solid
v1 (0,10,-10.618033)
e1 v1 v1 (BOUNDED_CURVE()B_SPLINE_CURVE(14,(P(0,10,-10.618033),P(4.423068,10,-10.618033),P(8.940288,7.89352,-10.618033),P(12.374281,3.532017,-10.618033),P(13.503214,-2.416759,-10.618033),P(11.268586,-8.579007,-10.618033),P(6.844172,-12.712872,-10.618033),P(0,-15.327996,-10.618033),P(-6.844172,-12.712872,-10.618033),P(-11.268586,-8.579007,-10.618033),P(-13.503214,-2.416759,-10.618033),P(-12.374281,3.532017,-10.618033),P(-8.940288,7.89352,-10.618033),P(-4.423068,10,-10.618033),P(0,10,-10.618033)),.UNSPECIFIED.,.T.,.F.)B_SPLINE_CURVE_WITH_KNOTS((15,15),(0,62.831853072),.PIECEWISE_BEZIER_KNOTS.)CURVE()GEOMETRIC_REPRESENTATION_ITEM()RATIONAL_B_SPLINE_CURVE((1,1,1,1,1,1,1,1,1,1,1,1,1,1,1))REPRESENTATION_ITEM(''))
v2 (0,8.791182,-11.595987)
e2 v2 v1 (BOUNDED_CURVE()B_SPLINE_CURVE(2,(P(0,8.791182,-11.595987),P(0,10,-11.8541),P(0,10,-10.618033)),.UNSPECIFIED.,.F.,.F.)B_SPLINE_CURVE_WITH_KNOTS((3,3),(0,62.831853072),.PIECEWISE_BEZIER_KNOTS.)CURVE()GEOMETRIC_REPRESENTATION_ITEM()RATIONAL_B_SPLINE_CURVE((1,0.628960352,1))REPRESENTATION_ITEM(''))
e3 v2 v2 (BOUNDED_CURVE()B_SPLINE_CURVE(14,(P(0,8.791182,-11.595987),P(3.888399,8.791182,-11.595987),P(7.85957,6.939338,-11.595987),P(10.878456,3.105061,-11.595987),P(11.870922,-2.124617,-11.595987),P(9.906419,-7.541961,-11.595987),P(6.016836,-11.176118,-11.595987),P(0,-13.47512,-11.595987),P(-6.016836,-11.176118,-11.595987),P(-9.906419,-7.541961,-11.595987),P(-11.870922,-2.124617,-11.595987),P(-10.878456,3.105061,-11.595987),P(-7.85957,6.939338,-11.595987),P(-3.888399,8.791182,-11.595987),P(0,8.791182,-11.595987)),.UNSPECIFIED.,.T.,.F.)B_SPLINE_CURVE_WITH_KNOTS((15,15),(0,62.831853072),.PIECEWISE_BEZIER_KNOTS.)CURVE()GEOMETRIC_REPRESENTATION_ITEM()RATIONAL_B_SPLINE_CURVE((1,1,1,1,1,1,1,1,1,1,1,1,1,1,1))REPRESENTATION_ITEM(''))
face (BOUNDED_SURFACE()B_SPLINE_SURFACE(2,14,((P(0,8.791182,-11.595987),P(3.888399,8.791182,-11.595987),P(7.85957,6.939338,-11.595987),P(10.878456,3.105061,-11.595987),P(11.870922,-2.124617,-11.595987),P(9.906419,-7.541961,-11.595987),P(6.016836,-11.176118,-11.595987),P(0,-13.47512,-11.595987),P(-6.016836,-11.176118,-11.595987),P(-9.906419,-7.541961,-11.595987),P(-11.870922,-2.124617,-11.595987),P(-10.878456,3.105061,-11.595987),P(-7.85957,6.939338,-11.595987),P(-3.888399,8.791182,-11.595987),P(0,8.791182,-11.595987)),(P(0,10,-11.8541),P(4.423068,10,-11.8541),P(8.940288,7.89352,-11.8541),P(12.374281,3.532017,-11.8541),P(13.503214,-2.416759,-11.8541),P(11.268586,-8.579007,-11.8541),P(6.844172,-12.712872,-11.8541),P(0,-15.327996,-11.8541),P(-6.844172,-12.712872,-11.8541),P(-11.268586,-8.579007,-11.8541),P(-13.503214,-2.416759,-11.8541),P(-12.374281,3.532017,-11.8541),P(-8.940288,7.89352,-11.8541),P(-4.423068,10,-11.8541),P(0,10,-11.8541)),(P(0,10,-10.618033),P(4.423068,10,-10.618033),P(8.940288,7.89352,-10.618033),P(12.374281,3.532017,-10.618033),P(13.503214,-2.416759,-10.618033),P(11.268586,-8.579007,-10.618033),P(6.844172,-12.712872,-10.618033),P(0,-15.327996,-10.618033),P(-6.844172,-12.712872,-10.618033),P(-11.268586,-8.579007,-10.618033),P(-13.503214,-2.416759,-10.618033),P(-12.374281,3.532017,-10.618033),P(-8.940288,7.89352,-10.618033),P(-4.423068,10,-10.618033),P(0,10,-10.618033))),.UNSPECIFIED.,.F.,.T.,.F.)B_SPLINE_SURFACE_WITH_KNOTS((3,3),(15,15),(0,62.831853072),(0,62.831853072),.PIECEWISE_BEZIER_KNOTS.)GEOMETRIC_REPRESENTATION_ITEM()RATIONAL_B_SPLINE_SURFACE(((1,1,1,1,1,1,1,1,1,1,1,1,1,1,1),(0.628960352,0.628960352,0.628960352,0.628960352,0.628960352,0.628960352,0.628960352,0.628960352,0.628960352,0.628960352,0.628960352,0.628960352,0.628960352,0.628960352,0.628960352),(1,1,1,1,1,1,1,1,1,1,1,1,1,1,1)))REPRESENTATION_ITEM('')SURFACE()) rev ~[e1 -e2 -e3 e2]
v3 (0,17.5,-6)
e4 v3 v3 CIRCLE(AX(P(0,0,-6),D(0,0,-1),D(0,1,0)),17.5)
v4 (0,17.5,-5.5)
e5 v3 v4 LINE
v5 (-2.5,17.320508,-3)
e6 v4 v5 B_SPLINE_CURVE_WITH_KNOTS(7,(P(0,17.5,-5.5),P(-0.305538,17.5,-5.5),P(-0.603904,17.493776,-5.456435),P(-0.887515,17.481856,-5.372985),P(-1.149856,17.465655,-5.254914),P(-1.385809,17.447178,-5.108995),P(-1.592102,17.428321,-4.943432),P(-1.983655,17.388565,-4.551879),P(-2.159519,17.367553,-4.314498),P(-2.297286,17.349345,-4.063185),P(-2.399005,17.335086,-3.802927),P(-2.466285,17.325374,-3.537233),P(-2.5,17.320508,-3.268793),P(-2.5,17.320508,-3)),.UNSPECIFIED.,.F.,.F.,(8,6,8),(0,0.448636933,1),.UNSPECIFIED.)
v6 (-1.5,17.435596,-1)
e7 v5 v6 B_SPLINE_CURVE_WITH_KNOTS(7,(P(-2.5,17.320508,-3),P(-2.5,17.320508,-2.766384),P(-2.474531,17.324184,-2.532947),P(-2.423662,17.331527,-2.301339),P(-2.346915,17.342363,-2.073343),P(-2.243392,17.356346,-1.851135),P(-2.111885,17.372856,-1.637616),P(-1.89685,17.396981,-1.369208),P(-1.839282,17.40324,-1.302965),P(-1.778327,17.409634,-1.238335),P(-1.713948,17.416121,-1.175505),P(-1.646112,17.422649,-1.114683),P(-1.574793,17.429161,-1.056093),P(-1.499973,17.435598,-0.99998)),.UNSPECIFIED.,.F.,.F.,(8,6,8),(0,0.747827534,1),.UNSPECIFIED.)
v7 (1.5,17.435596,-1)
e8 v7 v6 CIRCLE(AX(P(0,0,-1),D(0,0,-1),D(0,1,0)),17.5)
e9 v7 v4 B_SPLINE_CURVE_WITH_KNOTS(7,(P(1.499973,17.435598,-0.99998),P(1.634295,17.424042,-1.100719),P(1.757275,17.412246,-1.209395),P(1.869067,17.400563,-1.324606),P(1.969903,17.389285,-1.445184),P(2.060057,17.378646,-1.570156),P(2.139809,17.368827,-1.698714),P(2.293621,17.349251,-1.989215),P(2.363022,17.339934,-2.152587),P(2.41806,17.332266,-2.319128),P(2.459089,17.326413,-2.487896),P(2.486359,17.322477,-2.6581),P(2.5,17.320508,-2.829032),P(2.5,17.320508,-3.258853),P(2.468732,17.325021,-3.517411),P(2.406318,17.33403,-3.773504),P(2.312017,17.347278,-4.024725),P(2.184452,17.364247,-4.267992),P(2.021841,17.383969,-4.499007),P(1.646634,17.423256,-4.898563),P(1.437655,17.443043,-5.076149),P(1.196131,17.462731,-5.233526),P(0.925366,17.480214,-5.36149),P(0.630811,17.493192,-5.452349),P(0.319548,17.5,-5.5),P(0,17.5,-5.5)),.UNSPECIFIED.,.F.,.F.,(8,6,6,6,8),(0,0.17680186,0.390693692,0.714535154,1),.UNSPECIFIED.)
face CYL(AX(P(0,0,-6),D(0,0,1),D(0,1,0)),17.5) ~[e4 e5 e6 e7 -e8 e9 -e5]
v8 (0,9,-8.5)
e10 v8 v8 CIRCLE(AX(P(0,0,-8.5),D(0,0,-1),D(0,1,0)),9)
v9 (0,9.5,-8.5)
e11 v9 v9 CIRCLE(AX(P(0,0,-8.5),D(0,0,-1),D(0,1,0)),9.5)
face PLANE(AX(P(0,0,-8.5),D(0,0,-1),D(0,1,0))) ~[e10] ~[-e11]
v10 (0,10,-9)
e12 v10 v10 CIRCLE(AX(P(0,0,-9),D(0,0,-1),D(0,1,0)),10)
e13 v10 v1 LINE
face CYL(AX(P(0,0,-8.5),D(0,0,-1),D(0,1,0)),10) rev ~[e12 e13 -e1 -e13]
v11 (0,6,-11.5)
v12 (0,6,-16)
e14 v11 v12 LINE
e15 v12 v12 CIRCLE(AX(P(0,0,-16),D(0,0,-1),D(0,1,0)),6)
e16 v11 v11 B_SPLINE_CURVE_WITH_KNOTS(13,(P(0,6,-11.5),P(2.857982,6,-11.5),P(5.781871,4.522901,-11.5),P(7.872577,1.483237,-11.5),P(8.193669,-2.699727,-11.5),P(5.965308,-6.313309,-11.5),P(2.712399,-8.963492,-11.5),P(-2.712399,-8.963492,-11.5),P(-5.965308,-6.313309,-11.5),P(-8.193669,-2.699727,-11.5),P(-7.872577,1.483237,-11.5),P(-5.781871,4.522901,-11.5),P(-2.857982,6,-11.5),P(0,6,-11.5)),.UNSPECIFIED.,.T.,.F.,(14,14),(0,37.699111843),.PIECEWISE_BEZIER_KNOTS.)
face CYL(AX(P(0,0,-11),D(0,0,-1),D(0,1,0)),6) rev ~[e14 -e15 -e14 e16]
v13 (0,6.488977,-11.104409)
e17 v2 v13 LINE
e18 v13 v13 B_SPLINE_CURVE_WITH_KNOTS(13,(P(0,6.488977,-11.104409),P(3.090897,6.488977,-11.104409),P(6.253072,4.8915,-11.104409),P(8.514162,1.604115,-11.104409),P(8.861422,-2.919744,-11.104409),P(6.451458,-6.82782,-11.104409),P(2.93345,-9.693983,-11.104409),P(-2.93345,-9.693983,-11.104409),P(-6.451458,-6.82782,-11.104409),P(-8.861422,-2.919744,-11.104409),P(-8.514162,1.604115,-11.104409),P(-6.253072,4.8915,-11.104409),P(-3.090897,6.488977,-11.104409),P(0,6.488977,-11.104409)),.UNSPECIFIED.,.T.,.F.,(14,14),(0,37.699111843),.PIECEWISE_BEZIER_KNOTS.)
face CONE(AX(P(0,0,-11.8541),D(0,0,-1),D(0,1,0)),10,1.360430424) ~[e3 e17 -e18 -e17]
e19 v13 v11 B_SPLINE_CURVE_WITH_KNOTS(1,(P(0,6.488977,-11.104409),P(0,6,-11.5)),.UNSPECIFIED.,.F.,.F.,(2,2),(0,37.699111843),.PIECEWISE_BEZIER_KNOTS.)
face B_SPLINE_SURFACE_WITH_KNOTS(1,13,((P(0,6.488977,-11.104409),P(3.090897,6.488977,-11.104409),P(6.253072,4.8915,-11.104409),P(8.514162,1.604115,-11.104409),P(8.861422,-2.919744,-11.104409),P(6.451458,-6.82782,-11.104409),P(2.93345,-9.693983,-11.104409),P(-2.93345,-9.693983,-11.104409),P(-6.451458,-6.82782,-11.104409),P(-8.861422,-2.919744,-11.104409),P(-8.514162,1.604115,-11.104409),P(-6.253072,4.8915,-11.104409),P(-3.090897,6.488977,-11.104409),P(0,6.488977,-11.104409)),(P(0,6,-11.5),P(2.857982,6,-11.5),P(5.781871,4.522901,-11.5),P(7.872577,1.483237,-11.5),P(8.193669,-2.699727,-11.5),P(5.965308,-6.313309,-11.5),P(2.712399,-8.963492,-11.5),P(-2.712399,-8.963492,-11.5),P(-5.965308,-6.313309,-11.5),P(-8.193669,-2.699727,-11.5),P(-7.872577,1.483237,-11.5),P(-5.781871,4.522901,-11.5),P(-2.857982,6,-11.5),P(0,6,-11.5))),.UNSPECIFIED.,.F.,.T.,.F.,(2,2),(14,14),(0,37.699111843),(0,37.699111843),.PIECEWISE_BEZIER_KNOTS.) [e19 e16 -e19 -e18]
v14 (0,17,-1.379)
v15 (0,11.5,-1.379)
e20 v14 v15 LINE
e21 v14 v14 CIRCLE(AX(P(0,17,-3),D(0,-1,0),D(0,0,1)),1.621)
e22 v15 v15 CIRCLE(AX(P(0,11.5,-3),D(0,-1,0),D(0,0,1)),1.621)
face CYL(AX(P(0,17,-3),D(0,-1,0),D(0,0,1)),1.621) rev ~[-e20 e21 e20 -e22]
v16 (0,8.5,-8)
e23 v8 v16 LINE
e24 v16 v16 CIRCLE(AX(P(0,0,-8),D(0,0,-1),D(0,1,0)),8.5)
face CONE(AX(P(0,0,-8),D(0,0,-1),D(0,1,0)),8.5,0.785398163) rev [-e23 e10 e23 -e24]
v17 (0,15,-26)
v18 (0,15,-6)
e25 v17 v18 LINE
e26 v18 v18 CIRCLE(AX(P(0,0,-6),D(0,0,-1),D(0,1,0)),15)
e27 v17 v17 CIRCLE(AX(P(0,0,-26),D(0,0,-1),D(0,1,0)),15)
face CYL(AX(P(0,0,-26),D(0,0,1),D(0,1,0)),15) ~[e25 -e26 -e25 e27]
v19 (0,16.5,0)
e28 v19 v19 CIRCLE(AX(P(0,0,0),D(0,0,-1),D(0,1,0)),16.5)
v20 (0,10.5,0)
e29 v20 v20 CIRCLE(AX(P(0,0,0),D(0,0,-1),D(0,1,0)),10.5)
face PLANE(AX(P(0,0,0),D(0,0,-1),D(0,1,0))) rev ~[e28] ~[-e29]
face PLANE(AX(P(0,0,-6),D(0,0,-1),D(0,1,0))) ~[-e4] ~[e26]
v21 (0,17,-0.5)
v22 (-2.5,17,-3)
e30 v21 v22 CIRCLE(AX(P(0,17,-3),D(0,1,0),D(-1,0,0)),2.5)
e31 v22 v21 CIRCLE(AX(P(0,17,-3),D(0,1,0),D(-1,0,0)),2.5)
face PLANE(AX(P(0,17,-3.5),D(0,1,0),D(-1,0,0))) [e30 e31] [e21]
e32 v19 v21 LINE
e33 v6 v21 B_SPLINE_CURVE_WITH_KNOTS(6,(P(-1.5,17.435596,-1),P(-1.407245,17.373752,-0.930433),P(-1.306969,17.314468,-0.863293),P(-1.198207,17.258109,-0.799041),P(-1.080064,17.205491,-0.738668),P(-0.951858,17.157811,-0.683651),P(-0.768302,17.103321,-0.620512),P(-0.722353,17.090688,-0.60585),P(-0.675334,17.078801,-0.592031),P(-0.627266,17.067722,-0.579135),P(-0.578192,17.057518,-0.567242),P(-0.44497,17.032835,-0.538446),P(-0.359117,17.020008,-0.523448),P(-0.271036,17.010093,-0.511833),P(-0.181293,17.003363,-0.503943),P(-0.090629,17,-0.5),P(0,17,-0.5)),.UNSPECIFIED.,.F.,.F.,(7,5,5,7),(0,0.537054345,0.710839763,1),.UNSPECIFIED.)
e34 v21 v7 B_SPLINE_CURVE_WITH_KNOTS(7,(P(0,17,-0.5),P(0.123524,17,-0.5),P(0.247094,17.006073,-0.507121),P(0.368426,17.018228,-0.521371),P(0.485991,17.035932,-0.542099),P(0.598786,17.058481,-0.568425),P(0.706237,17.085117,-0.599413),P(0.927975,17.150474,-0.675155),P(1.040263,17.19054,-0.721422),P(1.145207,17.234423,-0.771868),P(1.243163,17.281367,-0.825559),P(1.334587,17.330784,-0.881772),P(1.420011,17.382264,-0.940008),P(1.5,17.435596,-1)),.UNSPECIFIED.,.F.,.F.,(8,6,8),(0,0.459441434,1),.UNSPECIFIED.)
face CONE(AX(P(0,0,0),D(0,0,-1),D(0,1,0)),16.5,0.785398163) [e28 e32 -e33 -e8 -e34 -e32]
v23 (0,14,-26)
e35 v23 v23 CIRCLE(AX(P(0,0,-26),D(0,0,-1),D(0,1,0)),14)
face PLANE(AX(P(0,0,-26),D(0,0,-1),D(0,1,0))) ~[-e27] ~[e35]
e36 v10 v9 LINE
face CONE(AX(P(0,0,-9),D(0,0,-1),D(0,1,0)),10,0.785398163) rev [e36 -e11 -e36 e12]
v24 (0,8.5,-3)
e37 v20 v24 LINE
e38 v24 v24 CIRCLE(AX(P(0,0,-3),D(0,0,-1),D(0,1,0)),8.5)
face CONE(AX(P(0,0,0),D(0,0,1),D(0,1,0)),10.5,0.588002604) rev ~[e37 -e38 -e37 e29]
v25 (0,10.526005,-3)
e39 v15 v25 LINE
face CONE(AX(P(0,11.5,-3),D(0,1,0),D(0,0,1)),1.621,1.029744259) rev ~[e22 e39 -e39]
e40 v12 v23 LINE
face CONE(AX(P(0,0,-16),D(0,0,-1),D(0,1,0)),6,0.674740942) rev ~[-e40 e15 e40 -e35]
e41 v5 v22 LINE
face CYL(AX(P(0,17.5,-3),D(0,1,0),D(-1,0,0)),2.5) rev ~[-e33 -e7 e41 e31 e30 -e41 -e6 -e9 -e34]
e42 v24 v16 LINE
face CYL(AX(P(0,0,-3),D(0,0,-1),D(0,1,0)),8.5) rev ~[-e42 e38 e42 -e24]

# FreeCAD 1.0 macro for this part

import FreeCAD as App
import Part
import Sketcher
from FreeCAD import Vector
Q = App.Units.Quantity


def edges_at(feature, points):
    """Names of the edges that pass closest to the given points."""
    edges = feature.Shape.Edges
    near = lambda p: min(range(len(edges)), key=lambda i: edges[i].distToShape(Part.Vertex(*p))[0])
    return sorted({f"Edge{near(p) + 1}" for p in points})

doc = App.newDocument("Part")
body = doc.addObject("PartDesign::Body", "Body")

# Sketch on YZ plane
sketch1 = body.newObject("Sketcher::SketchObject", "Sketch")
sketch1.AttachmentSupport = (doc.getObject("YZ_Plane"), [""])
sketch1.MapMode = "FlatFace"
sketch1.addGeometry(Part.LineSegment(Vector(10.5, 0, 0), Vector(8.5, -3, 0)), False)
sketch1.addGeometry(Part.LineSegment(Vector(8.5, -3, 0), Vector(8.5, -8.5, 0)), False)
sketch1.addGeometry(Part.LineSegment(Vector(8.5, -8.5, 0), Vector(10, -8.5, 0)), False)
sketch1.addGeometry(Part.LineSegment(Vector(10, -8.5, 0), Vector(10, -11.9, 0)), False)
sketch1.addGeometry(Part.LineSegment(Vector(10, -11.9, 0), Vector(6, -11, 0)), False)
sketch1.addGeometry(Part.LineSegment(Vector(6, -11, 0), Vector(6, -16, 0)), False)
sketch1.addGeometry(Part.LineSegment(Vector(6, -16, 0), Vector(14, -26, 0)), False)
sketch1.addGeometry(Part.LineSegment(Vector(14, -26, 0), Vector(15, -26, 0)), False)
sketch1.addGeometry(Part.LineSegment(Vector(15, -26, 0), Vector(15, -6, 0)), False)
sketch1.addGeometry(Part.LineSegment(Vector(15, -6, 0), Vector(17.5, -6, 0)), False)
sketch1.addGeometry(Part.LineSegment(Vector(17.5, -6, 0), Vector(17.5, -1, 0)), False)
sketch1.addGeometry(Part.LineSegment(Vector(17.5, -1, 0), Vector(16.5, 0, 0)), False)
sketch1.addGeometry(Part.LineSegment(Vector(16.5, 0, 0), Vector(10.5, 0, 0)), False)
sketch1.addConstraint(Sketcher.Constraint("Coincident", 0, 2, 1, 1))
sketch1.addConstraint(Sketcher.Constraint("Coincident", 1, 2, 2, 1))
sketch1.addConstraint(Sketcher.Constraint("Coincident", 2, 2, 3, 1))
sketch1.addConstraint(Sketcher.Constraint("Coincident", 3, 2, 4, 1))
sketch1.addConstraint(Sketcher.Constraint("Coincident", 4, 2, 5, 1))
sketch1.addConstraint(Sketcher.Constraint("Coincident", 5, 2, 6, 1))
sketch1.addConstraint(Sketcher.Constraint("Coincident", 6, 2, 7, 1))
sketch1.addConstraint(Sketcher.Constraint("Coincident", 7, 2, 8, 1))
sketch1.addConstraint(Sketcher.Constraint("Coincident", 8, 2, 9, 1))
sketch1.addConstraint(Sketcher.Constraint("Coincident", 9, 2, 10, 1))
sketch1.addConstraint(Sketcher.Constraint("Coincident", 10, 2, 11, 1))
sketch1.addConstraint(Sketcher.Constraint("Coincident", 11, 2, 12, 1))
sketch1.addConstraint(Sketcher.Constraint("Coincident", 12, 2, 0, 1))
sketch1.addConstraint(Sketcher.Constraint("Vertical", 1))
sketch1.addConstraint(Sketcher.Constraint("Horizontal", 2))
sketch1.addConstraint(Sketcher.Constraint("Vertical", 3))
sketch1.addConstraint(Sketcher.Constraint("Vertical", 5))
sketch1.addConstraint(Sketcher.Constraint("Horizontal", 7))
sketch1.addConstraint(Sketcher.Constraint("Vertical", 8))
sketch1.addConstraint(Sketcher.Constraint("Horizontal", 9))
sketch1.addConstraint(Sketcher.Constraint("Vertical", 10))
sketch1.addConstraint(Sketcher.Constraint("Horizontal", 12))
sketch1.addConstraint(Sketcher.Constraint("PointOnObject", 11, 2, -1))
sketch1.addConstraint(Sketcher.Constraint("Equal", 5, 10))
sketch1.addConstraint(Sketcher.Constraint("DistanceX", 7, 1, 7, 2, Q("1 mm")))
sketch1.addConstraint(Sketcher.Constraint("DistanceY", 5, 2, 5, 1, Q("5 mm")))
sketch1.addConstraint(Sketcher.Constraint("DistanceY", 8, 1, 8, 2, Q("20 mm")))
sketch1.addConstraint(Sketcher.Constraint("DistanceX", 9, 1, 9, 2, Q("2.5 mm")))
sketch1.addConstraint(Sketcher.Constraint("DistanceY", 0, 2, -1, 1, Q("3 mm")))
sketch1.addConstraint(Sketcher.Constraint("DistanceX", -1, 1, 2, 2, Q("10 mm")))
sketch1.addConstraint(Sketcher.Constraint("DistanceY", 4, 2, -1, 1, Q("11 mm")))
sketch1.addConstraint(Sketcher.Constraint("DistanceY", 10, 2, -1, 1, Q("1 mm")))
sketch1.addConstraint(Sketcher.Constraint("DistanceX", 3, 2, 7, 2, Q("5 mm")))
sketch1.addConstraint(Sketcher.Constraint("DistanceX", 11, 2, 10, 2, Q("1 mm")))
sketch1.addConstraint(Sketcher.Constraint("DistanceX", 0, 2, 12, 2, Q("2 mm")))
sketch1.addConstraint(Sketcher.Constraint("DistanceX", 4, 2, 1, 2, Q("2.5 mm")))
sketch1.addConstraint(Sketcher.Constraint("DistanceY", 4, 2, 1, 2, Q("2.5 mm")))
sketch1.addConstraint(Sketcher.Constraint("DistanceX", 12, 2, 12, 1, Q("6 mm")))
sketch1.addConstraint(Sketcher.Constraint("DistanceY", 3, 2, 3, 1, Q("3.354 mm")))
revolution = body.newObject("PartDesign::Revolution", "Revolution")
revolution.Profile = sketch1
revolution.ReferenceAxis = (sketch1, ["V_Axis"])
revolution.Angle = 360
doc.recompute()

fillet = body.newObject("PartDesign::Fillet", "Fillet")
fillet.Base = (revolution, edges_at(revolution, [(0, -10, -11.854)]))
fillet.Radius = 1
doc.recompute()

chamfer = body.newObject("PartDesign::Chamfer", "Chamfer")
chamfer.Base = (fillet, edges_at(fillet, [(0, -8.5, -8.5), (0, -6, -11), (0, -10, -8.5)]))
chamfer.Size = 0.5

# Sketch on XZ plane
sketch2 = body.newObject("Sketcher::SketchObject", "Sketch001")
sketch2.AttachmentSupport = (doc.getObject("XZ_Plane"), [""])
sketch2.MapMode = "FlatFace"
sketch2.AttachmentOffset = App.Placement(Vector(0, 0, -17.5), App.Rotation())
sketch2.addGeometry(Part.Circle(Vector(0, -3, 0), Vector(0, 0, 1), 2.5), False)
sketch2.addConstraint(Sketcher.Constraint("PointOnObject", 0, 3, -2))
sketch2.addConstraint(Sketcher.Constraint("Diameter", 0, Q("5 mm")))
sketch2.addConstraint(Sketcher.Constraint("DistanceY", 0, 3, -1, 1, Q("3 mm")))
pocket1 = body.newObject("PartDesign::Pocket", "Pocket")
pocket1.Profile = sketch2
pocket1.Length = 0.5
pocket1.Reversed = True

# Sketch on XZ plane
sketch3 = body.newObject("Sketcher::SketchObject", "Sketch002")
sketch3.AttachmentSupport = (doc.getObject("XZ_Plane"), [""])
sketch3.MapMode = "FlatFace"
sketch3.AttachmentOffset = App.Placement(Vector(0, 0, -17), App.Rotation())
sketch3.addGeometry(Part.Circle(Vector(0, -3, 0), Vector(0, 0, 1), 1.6), False)
sketch3.addConstraint(Sketcher.Constraint("PointOnObject", 0, 3, -2))
sketch3.addConstraint(Sketcher.Constraint("Diameter", 0, Q("3.242 mm")))
sketch3.addConstraint(Sketcher.Constraint("DistanceY", 0, 3, -1, 1, Q("3 mm")))
doc.recompute()
hole = body.newObject("PartDesign::Hole", "Hole")
hole.Profile = sketch3
hole.ThreadType = "None"
hole.Diameter = 3.242
hole.DepthType = "Dimension"
hole.Depth = 5.5
hole.DrillPoint = "Angled"
hole.DrillPointAngle = 118
hole.Reversed = True

doc.recompute()
